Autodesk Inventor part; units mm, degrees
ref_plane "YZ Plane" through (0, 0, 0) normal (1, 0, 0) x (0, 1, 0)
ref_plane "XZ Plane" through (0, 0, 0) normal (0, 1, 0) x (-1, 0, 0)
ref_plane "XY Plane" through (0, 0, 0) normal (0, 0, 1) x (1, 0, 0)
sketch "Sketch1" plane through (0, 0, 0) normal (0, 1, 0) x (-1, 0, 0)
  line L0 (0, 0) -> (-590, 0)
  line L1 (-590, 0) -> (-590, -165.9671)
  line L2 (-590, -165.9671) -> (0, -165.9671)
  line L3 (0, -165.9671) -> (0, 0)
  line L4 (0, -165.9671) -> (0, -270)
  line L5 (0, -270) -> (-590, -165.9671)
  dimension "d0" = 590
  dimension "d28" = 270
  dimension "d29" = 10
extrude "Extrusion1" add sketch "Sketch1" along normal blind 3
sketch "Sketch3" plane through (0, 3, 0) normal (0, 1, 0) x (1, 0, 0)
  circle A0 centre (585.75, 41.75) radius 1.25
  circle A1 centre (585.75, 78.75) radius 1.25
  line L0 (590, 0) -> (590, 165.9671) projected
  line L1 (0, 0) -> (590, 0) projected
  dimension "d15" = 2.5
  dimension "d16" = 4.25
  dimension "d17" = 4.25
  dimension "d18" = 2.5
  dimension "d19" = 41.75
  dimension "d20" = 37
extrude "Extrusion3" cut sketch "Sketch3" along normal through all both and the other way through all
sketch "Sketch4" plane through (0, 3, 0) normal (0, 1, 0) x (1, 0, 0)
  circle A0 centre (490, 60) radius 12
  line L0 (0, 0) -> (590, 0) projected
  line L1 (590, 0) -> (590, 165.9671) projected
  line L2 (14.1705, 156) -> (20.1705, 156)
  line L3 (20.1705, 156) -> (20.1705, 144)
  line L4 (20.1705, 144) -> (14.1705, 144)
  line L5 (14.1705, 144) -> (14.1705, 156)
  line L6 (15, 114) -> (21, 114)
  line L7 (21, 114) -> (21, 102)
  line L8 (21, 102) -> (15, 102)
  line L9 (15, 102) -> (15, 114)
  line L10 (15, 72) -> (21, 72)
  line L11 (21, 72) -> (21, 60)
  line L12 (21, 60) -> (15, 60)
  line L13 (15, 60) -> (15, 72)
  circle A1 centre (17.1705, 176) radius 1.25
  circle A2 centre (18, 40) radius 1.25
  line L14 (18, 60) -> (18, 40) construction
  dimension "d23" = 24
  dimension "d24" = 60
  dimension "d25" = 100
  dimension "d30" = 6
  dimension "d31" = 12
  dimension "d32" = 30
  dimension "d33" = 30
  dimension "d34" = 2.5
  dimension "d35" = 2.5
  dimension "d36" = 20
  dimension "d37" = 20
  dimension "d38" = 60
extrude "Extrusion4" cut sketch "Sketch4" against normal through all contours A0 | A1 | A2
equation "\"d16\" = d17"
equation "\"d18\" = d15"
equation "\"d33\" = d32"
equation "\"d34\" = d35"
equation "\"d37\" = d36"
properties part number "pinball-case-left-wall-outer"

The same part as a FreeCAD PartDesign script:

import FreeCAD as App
import Part
import Sketcher

V = App.Vector
Q = App.Units.Quantity

doc = App.newDocument("Part")
body = doc.addObject("PartDesign::Body", "Body")

# Sketch on XZ plane
sketch1 = body.newObject("Sketcher::SketchObject", "Sketch")
sketch1.AttachmentSupport = (doc.getObject("XZ_Plane"), [""])
sketch1.MapMode = "FlatFace"
sketch1.addGeometry(Part.LineSegment(V(0, 0, 0), V(590, 0, 0)), False)
sketch1.addGeometry(Part.LineSegment(V(590, 0, 0), V(590, -165.9671, 0)), False)
sketch1.addGeometry(Part.LineSegment(V(590, -165.9671, 0), V(0, -270, 0)), False)
sketch1.addGeometry(Part.LineSegment(V(0, -270, 0), V(0, 0, 0)), False)
sketch1.addConstraint(Sketcher.Constraint("Coincident", 0, 2, 1, 1))
sketch1.addConstraint(Sketcher.Constraint("Coincident", 1, 2, 2, 1))
sketch1.addConstraint(Sketcher.Constraint("Coincident", 2, 2, 3, 1))
sketch1.addConstraint(Sketcher.Constraint("Coincident", 3, 2, 0, 1))
sketch1.addConstraint(Sketcher.Constraint("Horizontal", 0))
sketch1.addConstraint(Sketcher.Constraint("Vertical", 1))
sketch1.addConstraint(Sketcher.Constraint("Vertical", 3))
sketch1.addConstraint(Sketcher.Constraint("Coincident", 3, 2, -1, 1))
sketch1.addConstraint(Sketcher.Constraint("DistanceX", 0, 1, 0, 2, 590.0))
sketch1.addConstraint(Sketcher.Constraint("DistanceY", 3, 1, 3, 2, 270.0))
sketch1.addConstraint(Sketcher.Constraint("Angle", 2, Q("-170 deg")))
pad1 = body.newObject("PartDesign::Pad", "Pad")
pad1.Profile = sketch1
pad1.Length = 3
pad1.Reversed = True

# Sketch on XZ plane
sketch2 = body.newObject("Sketcher::SketchObject", "Sketch001")
sketch2.AttachmentSupport = (doc.getObject("XZ_Plane"), [""])
sketch2.MapMode = "FlatFace"
sketch2.AttachmentOffset = App.Placement(V(0, 0, -3), App.Rotation())
sketch2.addGeometry(Part.Circle(V(585.75, -41.75, 0), V(0, 0, 1), 1.25), False)
sketch2.addGeometry(Part.Circle(V(585.75, -78.75, 0), V(0, 0, 1), 1.25), False)
sketch2.addConstraint(Sketcher.Constraint("Equal", 0, 1))
sketch2.addConstraint(Sketcher.Constraint("Vertical", 0, 3, 1, 3))
sketch2.addConstraint(Sketcher.Constraint("Diameter", 0, 2.5))
sketch2.addConstraint(Sketcher.Constraint("DistanceY", 1, 3, 0, 3, 37.0))
sketch2.addConstraint(Sketcher.Constraint("DistanceY", 0, 3, -1, 1, 41.75))
sketch2.addConstraint(Sketcher.Constraint("DistanceX", -1, 1, 0, 3, 585.75))
pocket1 = body.newObject("PartDesign::Pocket", "Pocket")
pocket1.Profile = sketch2
pocket1.Type = "ThroughAll"
pocket1.Midplane = True

# Sketch on XZ plane
sketch3 = body.newObject("Sketcher::SketchObject", "Sketch002")
sketch3.AttachmentSupport = (doc.getObject("XZ_Plane"), [""])
sketch3.MapMode = "FlatFace"
sketch3.AttachmentOffset = App.Placement(V(0, 0, -3), App.Rotation())
sketch3.addGeometry(Part.Circle(V(490, -60, 0), V(0, 0, 1), 12), False)
sketch3.addGeometry(Part.Circle(V(17.1705, -176, 0), V(0, 0, 1), 1.25), False)
sketch3.addGeometry(Part.Circle(V(18, -40, 0), V(0, 0, 1), 1.25), False)
sketch3.addConstraint(Sketcher.Constraint("Equal", 1, 2))
sketch3.addConstraint(Sketcher.Constraint("Diameter", 0, 24.0))
sketch3.addConstraint(Sketcher.Constraint("Diameter", 1, 2.5))
sketch3.addConstraint(Sketcher.Constraint("DistanceY", 0, 3, -1, 1, 60.0))
sketch3.addConstraint(Sketcher.Constraint("DistanceY", 0, 3, 2, 3, 20.0))
sketch3.addConstraint(Sketcher.Constraint("DistanceX", -1, 1, 0, 3, 490.0))
sketch3.addConstraint(Sketcher.Constraint("DistanceY", 1, 3, -1, 1, 176.0))
sketch3.addConstraint(Sketcher.Constraint("DistanceX", -1, 1, 2, 3, 18.0))
sketch3.addConstraint(Sketcher.Constraint("DistanceX", -1, 1, 1, 3, 17.1705))
pocket2 = body.newObject("PartDesign::Pocket", "Pocket001")
pocket2.Profile = sketch3
pocket2.Type = "ThroughAll"
pocket2.Reversed = True

doc.recompute()
